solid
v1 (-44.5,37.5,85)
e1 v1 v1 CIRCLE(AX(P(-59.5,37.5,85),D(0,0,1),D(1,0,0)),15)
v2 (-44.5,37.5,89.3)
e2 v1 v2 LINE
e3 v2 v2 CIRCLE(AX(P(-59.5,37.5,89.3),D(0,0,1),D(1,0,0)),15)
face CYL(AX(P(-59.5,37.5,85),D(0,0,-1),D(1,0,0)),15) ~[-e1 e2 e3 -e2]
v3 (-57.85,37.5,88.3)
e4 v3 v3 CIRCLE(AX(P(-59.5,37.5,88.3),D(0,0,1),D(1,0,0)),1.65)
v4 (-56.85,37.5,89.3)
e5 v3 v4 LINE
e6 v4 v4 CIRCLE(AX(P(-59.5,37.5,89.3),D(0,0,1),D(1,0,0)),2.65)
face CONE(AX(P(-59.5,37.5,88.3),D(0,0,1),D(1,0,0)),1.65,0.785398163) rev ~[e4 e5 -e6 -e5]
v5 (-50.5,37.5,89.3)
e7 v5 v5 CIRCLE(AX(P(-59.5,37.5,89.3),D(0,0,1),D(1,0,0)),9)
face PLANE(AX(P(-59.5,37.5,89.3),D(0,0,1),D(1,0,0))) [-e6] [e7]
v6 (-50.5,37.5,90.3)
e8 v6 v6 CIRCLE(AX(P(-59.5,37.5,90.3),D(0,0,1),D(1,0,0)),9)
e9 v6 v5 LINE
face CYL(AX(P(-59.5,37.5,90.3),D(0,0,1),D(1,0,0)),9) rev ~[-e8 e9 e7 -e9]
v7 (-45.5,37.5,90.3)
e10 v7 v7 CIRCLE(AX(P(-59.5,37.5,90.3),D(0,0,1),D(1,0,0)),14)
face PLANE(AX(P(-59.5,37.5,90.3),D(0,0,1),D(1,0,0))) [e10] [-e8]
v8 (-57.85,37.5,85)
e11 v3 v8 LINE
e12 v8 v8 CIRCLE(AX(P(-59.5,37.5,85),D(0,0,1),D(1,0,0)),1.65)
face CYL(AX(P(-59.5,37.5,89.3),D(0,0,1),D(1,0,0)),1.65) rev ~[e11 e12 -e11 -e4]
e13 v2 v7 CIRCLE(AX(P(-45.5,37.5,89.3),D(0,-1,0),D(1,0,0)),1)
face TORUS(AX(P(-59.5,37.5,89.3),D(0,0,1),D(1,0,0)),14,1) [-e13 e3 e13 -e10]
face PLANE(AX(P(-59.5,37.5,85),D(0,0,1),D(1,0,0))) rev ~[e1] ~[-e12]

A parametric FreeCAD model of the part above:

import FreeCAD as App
import Part
import Sketcher
from FreeCAD import Vector
Q = App.Units.Quantity


def edges_at(feature, points):
    """Names of the edges that pass closest to the given points."""
    edges = feature.Shape.Edges
    near = lambda p: min(range(len(edges)), key=lambda i: edges[i].distToShape(Part.Vertex(*p))[0])
    return sorted({f"Edge{near(p) + 1}" for p in points})

doc = App.newDocument("Part")
body = doc.addObject("PartDesign::Body", "Body")

sketch1 = body.newObject("Sketcher::SketchObject", "Sketch")
sketch1.AttachmentSupport = (doc.getObject("XY_Plane"), [""])
sketch1.MapMode = "FlatFace"
sketch1.addGeometry(Part.Circle(Vector(0, 0, 0), Vector(0, 0, 1), 15), False)
sketch1.addConstraint([
    Sketcher.Constraint("Coincident", 0, 3, -1, 1),
    Sketcher.Constraint("Diameter", 0, Q("30 mm")),
])
pad1 = body.newObject("PartDesign::Pad", "Pad")
pad1.Profile = sketch1
pad1.Length = 5.3

sketch2 = body.newObject("Sketcher::SketchObject", "Sketch001")
sketch2.AttachmentSupport = (doc.getObject("XY_Plane"), [""])
sketch2.MapMode = "FlatFace"
sketch2.AttachmentOffset = App.Placement(Vector(0, 0, 5.3), App.Rotation())
sketch2.addGeometry(Part.Circle(Vector(0, 0, 0), Vector(0, 0, 1), 9), False)
sketch2.addConstraint([
    Sketcher.Constraint("Coincident", 0, 3, -1, 1),
    Sketcher.Constraint("Diameter", 0, Q("18 mm")),
])
pocket1 = body.newObject("PartDesign::Pocket", "Pocket")
pocket1.Profile = sketch2
pocket1.Length = 1

sketch3 = body.newObject("Sketcher::SketchObject", "Sketch002")
sketch3.AttachmentSupport = (doc.getObject("XY_Plane"), [""])
sketch3.MapMode = "FlatFace"
sketch3.AttachmentOffset = App.Placement(Vector(0, 0, 4.3), App.Rotation())
sketch3.addGeometry(Part.Circle(Vector(0, 0, 0), Vector(0, 0, 1), 1.6), False)
sketch3.addConstraint([
    Sketcher.Constraint("Coincident", 0, 3, -1, 1),
    Sketcher.Constraint("Diameter", 0, Q("3.3 mm")),
])
pocket2 = body.newObject("PartDesign::Pocket", "Pocket001")
pocket2.Profile = sketch3
pocket2.Length = 5
doc.recompute()

fillet = body.newObject("PartDesign::Fillet", "Fillet")
fillet.Base = (pocket2, edges_at(pocket2, [(-15, 0, 5.3)]))
fillet.Radius = 1
doc.recompute()

chamfer = body.newObject("PartDesign::Chamfer", "Chamfer")
chamfer.Base = (fillet, edges_at(fillet, [(-1.65, 0, 4.3)]))
chamfer.Size = 1
body2 = doc.addObject("PartDesign::Body", "Body001")
doc.recompute()

body.Placement = App.Placement(Vector(-59.5, 37.5, 85), App.Rotation(Vector(0, 0, 1), 0))
boolean = body2.newObject("PartDesign::Boolean", "Boolean")
boolean.Type = "Fuse"
boolean.addObjects([body])

doc.recompute()
